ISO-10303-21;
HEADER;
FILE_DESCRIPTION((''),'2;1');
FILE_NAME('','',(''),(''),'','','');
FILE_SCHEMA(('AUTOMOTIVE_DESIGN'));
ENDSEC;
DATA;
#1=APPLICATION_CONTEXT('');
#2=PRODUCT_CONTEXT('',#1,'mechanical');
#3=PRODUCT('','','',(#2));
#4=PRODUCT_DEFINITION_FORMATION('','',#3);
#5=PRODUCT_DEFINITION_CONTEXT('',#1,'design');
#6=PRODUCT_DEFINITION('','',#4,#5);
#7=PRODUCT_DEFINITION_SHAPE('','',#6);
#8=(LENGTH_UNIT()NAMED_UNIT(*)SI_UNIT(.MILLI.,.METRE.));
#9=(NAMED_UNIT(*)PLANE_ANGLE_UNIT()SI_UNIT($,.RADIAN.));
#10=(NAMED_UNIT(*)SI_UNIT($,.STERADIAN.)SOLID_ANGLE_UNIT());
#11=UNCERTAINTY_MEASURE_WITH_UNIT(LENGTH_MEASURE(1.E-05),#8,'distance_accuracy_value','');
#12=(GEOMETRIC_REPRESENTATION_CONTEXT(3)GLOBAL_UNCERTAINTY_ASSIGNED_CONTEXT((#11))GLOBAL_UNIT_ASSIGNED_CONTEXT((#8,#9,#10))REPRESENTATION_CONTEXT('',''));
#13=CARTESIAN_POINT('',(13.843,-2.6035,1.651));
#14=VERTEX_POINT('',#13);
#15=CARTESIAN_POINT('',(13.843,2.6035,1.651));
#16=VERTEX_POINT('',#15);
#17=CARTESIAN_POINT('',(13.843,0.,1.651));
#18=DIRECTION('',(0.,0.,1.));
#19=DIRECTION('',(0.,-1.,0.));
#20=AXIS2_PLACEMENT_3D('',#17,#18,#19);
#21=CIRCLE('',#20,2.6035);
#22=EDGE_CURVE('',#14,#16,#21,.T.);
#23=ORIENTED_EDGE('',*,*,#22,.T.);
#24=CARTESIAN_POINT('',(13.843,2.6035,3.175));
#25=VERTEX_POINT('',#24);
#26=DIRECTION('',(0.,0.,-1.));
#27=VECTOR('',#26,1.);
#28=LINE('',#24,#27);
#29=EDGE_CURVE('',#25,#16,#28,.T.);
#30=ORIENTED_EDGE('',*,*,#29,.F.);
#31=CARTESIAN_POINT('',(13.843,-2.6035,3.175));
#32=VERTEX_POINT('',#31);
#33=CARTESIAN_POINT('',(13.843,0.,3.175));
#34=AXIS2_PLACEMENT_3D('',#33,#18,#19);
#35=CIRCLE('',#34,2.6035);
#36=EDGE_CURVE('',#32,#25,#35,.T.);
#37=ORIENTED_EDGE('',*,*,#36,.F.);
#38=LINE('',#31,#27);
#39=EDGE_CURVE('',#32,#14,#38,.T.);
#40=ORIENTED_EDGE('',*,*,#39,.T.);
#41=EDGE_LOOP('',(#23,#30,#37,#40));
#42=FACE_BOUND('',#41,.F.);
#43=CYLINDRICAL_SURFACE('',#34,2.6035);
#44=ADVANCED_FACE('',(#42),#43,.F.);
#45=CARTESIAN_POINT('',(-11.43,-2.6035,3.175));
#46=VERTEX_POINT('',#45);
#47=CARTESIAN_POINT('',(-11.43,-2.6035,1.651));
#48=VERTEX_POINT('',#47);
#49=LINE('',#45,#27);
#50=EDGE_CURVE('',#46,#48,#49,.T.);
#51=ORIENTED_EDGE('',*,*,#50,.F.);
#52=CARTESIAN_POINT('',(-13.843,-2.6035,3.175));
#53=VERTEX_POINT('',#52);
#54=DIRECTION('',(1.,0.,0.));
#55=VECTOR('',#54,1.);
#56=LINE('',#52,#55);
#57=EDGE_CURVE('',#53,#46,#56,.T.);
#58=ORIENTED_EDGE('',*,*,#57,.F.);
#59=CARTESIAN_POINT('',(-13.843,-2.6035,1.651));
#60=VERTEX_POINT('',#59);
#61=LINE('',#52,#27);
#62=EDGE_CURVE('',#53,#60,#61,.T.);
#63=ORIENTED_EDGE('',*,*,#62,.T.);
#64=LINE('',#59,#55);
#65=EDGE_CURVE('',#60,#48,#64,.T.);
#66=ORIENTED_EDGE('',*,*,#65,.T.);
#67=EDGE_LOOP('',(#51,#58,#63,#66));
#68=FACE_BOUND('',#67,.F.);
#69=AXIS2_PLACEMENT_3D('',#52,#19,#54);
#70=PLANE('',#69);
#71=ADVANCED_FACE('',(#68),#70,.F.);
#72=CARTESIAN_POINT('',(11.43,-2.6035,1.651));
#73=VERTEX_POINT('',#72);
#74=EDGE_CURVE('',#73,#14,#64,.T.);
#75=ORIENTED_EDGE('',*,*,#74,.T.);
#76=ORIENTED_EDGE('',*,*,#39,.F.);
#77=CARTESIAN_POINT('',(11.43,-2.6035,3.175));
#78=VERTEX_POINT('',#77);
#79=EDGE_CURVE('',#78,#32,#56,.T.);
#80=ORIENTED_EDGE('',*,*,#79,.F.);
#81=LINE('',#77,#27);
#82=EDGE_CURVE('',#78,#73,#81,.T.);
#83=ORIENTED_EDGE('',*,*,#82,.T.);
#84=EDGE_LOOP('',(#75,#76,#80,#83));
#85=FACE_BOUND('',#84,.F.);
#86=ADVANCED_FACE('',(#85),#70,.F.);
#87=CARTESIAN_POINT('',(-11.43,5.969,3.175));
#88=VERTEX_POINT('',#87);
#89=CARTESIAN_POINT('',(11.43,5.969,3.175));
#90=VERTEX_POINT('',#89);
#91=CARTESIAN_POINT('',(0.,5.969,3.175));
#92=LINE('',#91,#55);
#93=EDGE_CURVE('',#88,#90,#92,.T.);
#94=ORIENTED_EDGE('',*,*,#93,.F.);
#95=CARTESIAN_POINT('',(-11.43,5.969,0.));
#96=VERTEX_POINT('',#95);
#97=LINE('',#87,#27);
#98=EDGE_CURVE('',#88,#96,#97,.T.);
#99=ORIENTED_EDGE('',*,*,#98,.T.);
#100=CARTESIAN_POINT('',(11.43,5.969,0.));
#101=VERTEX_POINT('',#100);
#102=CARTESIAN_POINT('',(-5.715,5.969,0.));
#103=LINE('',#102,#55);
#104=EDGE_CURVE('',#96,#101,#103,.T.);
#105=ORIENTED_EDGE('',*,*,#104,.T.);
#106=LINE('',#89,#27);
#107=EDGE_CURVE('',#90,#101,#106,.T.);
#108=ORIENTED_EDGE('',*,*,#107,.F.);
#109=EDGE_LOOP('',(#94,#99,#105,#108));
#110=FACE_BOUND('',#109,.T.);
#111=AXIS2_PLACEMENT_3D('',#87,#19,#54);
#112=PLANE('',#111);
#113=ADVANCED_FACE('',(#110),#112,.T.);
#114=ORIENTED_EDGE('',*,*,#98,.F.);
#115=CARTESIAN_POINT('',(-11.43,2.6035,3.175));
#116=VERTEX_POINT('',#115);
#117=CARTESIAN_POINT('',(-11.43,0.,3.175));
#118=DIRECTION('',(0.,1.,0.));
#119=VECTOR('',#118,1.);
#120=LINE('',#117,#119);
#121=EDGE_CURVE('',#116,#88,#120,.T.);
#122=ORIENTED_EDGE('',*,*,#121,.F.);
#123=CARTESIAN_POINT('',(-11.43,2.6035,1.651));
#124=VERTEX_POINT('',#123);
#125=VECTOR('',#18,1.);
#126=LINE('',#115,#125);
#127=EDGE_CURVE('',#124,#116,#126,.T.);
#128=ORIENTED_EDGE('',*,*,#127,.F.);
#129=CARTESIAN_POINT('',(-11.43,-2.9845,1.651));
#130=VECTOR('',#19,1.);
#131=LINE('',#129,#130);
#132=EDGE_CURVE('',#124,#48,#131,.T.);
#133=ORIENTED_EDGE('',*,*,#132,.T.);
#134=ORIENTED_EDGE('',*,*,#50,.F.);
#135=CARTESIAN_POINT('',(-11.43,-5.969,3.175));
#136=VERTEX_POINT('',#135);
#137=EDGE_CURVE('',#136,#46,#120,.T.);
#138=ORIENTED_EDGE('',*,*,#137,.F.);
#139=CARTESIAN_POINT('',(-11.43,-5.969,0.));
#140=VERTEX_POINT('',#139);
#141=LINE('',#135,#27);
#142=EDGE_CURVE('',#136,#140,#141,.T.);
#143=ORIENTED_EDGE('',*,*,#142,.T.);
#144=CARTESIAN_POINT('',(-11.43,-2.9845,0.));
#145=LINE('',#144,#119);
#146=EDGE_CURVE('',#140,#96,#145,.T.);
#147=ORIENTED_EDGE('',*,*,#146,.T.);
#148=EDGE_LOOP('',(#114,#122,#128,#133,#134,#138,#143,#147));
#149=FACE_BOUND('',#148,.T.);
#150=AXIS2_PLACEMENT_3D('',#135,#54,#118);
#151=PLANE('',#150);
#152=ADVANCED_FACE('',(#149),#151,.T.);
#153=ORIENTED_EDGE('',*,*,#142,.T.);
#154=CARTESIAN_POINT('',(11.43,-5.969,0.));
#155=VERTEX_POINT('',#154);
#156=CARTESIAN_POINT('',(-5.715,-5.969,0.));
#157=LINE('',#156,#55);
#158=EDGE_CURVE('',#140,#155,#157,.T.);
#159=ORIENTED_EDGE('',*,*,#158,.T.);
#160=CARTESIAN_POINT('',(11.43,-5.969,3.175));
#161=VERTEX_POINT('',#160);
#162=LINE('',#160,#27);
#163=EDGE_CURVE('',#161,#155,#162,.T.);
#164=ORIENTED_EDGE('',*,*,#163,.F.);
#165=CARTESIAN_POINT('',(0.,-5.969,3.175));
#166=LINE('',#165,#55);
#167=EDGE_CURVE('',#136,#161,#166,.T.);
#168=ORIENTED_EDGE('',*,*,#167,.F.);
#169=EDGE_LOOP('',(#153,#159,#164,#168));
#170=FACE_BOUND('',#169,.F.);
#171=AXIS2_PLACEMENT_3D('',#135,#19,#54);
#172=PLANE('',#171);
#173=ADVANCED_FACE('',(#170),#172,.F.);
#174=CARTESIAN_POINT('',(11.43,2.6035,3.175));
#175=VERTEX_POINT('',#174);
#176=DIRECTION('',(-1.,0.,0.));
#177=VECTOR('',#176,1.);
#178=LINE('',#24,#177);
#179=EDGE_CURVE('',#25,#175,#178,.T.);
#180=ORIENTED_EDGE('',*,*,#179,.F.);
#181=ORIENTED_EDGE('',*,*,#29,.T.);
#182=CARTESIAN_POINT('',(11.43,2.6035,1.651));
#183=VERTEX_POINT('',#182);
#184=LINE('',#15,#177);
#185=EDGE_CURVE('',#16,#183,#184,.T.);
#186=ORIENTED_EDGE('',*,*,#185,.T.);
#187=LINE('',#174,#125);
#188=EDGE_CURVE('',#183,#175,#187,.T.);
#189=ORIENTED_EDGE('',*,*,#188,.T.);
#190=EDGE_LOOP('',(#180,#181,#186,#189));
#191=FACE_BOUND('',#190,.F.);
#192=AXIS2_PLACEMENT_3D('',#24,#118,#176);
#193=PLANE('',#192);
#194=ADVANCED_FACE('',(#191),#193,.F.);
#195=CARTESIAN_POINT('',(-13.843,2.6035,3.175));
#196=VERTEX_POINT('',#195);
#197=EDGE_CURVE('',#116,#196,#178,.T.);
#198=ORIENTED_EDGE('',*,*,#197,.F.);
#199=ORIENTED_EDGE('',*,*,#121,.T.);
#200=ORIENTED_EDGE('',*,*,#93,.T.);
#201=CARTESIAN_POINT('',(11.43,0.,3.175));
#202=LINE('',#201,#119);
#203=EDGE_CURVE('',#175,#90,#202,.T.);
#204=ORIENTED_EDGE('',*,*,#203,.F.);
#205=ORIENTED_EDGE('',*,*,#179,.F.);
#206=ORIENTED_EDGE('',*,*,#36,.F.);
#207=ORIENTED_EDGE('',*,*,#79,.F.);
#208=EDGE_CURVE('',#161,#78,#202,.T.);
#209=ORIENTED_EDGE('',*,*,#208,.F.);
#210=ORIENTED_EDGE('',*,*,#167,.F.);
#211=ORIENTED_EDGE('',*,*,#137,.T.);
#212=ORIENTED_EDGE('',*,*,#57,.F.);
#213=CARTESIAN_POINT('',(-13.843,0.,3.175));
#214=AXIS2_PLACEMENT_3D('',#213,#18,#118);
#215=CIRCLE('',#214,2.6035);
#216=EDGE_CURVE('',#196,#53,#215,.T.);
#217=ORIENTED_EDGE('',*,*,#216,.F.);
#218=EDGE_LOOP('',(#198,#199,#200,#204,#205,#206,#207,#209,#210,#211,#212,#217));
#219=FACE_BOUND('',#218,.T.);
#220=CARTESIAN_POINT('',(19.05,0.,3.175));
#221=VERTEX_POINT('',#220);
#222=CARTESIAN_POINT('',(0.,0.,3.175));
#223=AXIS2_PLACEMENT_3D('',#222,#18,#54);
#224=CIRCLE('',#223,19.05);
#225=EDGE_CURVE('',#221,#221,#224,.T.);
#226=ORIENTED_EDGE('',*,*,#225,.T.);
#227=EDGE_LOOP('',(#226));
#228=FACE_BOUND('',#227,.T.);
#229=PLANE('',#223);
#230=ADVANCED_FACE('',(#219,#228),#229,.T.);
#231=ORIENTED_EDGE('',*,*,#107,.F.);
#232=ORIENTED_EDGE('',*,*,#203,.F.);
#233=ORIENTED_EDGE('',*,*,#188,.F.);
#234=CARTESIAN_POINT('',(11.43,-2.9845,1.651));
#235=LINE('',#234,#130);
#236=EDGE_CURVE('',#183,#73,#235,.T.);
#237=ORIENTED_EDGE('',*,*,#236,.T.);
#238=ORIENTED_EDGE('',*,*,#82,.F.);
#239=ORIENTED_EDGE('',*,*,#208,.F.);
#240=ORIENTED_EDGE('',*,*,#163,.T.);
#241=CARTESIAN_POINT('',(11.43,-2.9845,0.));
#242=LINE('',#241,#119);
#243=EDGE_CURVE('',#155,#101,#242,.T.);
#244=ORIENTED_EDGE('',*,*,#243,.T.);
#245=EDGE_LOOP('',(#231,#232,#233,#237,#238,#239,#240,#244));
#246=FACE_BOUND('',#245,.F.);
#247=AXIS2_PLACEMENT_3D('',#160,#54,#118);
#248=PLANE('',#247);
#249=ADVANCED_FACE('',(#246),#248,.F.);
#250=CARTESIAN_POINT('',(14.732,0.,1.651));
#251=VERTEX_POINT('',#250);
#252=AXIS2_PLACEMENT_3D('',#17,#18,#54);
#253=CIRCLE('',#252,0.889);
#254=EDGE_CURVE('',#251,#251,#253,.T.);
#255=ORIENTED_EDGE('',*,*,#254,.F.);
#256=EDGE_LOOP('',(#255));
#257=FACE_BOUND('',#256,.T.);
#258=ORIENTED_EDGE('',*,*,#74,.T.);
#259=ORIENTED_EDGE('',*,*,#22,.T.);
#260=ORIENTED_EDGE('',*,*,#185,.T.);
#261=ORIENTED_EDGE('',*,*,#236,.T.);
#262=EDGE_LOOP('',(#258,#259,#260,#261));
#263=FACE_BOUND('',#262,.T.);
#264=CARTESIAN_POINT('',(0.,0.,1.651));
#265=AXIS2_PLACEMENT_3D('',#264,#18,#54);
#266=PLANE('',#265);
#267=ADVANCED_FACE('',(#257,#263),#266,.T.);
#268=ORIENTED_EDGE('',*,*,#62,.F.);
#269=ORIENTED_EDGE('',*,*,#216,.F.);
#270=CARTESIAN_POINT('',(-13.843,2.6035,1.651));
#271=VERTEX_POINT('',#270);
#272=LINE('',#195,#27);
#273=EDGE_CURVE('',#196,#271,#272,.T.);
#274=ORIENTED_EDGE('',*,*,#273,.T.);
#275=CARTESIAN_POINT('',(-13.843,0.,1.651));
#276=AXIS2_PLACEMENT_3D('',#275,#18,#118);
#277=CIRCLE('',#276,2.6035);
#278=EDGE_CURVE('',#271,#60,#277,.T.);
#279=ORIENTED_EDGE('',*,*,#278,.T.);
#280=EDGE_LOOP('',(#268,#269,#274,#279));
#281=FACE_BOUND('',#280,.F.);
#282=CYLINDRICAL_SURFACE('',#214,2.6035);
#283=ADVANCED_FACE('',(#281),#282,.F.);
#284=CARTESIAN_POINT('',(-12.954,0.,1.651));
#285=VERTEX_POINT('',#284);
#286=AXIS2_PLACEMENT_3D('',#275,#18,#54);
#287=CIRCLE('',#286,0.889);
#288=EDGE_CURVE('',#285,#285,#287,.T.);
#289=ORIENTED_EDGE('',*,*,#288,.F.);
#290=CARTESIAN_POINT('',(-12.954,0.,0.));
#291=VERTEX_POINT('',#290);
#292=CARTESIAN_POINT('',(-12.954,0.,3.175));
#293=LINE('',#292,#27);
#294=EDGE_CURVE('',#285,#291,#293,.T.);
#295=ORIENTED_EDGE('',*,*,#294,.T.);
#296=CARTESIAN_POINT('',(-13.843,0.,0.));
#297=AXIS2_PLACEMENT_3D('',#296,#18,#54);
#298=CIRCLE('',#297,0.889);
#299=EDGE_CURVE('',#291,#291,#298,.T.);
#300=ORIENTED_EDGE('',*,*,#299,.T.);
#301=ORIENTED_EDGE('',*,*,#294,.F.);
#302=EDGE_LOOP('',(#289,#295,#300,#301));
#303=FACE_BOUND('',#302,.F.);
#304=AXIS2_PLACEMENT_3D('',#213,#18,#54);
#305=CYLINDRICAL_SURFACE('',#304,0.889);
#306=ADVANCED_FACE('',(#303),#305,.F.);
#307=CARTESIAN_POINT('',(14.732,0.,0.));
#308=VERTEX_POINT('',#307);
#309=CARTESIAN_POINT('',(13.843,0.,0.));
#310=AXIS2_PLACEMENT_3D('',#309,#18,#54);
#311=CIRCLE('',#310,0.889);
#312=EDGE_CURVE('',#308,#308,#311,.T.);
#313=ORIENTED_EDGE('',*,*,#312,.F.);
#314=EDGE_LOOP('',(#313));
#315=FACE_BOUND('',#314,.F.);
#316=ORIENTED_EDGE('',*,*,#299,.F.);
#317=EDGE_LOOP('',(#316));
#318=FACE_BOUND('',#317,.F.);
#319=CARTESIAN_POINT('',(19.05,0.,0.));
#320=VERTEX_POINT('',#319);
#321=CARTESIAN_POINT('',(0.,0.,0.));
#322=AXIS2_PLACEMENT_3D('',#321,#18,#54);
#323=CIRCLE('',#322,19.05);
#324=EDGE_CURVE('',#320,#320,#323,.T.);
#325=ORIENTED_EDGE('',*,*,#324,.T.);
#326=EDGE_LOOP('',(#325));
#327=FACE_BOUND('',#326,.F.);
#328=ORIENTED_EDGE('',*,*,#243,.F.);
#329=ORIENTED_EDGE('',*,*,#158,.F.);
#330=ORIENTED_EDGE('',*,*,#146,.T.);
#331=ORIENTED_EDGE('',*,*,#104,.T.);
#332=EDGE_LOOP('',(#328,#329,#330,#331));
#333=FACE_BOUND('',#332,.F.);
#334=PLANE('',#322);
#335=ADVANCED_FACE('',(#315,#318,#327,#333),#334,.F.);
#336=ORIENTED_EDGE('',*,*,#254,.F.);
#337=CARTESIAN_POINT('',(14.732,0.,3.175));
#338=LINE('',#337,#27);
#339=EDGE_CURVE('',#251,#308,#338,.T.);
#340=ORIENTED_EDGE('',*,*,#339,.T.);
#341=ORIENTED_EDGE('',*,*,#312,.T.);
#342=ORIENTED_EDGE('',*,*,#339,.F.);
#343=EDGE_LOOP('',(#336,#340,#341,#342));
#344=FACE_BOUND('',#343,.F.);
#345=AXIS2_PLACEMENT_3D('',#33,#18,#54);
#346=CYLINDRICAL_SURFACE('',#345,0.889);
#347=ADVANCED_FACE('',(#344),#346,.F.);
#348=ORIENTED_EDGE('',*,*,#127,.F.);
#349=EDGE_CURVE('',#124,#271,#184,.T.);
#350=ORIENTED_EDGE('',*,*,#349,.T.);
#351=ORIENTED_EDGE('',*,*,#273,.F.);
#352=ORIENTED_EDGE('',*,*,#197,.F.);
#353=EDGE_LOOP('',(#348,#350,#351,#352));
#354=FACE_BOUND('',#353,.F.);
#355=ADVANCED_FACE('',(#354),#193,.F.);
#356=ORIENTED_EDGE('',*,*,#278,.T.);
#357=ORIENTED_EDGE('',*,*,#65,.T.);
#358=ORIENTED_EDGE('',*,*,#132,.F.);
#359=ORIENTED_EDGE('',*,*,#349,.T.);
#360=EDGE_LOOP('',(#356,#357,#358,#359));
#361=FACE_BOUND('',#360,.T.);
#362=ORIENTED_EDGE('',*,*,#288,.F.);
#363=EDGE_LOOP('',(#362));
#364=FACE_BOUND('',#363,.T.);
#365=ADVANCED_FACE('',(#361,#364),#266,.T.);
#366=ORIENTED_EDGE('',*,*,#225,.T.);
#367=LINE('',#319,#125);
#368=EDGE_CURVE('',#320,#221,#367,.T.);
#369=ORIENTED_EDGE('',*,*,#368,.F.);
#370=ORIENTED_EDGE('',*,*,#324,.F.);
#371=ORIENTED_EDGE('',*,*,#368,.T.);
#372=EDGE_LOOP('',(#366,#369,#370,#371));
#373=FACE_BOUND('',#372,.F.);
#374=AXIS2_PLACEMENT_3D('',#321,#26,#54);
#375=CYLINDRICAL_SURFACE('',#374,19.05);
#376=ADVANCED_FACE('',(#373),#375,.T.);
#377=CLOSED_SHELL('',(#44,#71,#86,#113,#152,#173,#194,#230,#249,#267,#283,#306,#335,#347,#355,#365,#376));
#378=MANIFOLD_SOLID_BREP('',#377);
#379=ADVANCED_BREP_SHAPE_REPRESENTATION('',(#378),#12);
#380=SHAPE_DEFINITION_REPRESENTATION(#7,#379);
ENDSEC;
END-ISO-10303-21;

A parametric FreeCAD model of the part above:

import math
import FreeCAD as App
import Part
import Sketcher
from FreeCAD import Vector
Q = App.Units.Quantity


def add_polygon(sketch, points):
    """Adds a closed chain of lines whose ends are joined by coincident constraints."""
    first, n = sketch.GeometryCount, len(points)
    for a, b in zip(points, points[1:] + points[:1]):
        sketch.addGeometry(Part.LineSegment(App.Vector(*a, 0), App.Vector(*b, 0)), False)
    for i in range(n):
        sketch.addConstraint(Sketcher.Constraint("Coincident", first + i, 2, first + (i + 1) % n, 1))

doc = App.newDocument("Part")
body = doc.addObject("PartDesign::Body", "Body")

sketch1 = body.newObject("Sketcher::SketchObject", "Sketch")
sketch1.AttachmentSupport = (doc.getObject("XY_Plane"), [""])
sketch1.MapMode = "FlatFace"
sketch1.addGeometry(Part.Circle(Vector(0, 0, 0), Vector(0, 0, 1), 19), False)
sketch1.addConstraint([
    Sketcher.Constraint("Coincident", 0, 3, -1, 1),
    Sketcher.Constraint("Diameter", 0, Q("1.5 in")),
])
pad1 = body.newObject("PartDesign::Pad", "Pad")
pad1.Profile = sketch1
pad1.Length = Q("0.125 in")

sketch2 = body.newObject("Sketcher::SketchObject", "Sketch001")
sketch2.AttachmentSupport = (doc.getObject("XY_Plane"), [""])
sketch2.MapMode = "FlatFace"
sketch2.AttachmentOffset = App.Placement(Vector(0, 0, 0.125 * 25.4), App.Rotation())
add_polygon(sketch2, [(-11.4, 6), (-11.4, -6), (11.4, -6), (11.4, 6)])
sketch2.addGeometry(Part.Circle(Vector(-13.8, 0, 0), Vector(0, 0, 1), 0.9), False)
sketch2.addGeometry(Part.Circle(Vector(13.8, 0, 0), Vector(0, 0, 1), 0.9), False)
sketch2.addConstraint([
    Sketcher.Constraint("Vertical", 0),
    Sketcher.Constraint("Horizontal", 1),
    Sketcher.Constraint("Vertical", 2),
    Sketcher.Constraint("Horizontal", 3),
    Sketcher.Constraint("Equal", 4, 5),
    Sketcher.Constraint("Symmetric", 4, 3, 5, 3, -1, 1),
    Sketcher.Constraint("Symmetric", 0, 2, 2, 2, -1, 1),
    Sketcher.Constraint("PointOnObject", 4, 3, -1),
    Sketcher.Constraint("Diameter", 4, Q("0.07 in")),
    Sketcher.Constraint("DistanceX", 1, 1, 1, 2, Q("0.9 in")),
    Sketcher.Constraint("DistanceY", 0, 2, 0, 1, Q("0.47 in")),
    Sketcher.Constraint("DistanceX", 4, 3, 5, 3, Q("1.09 in")),
])
pocket1 = body.newObject("PartDesign::Pocket", "Pocket")
pocket1.Profile = sketch2
pocket1.Type = "ThroughAll"

sketch3 = body.newObject("Sketcher::SketchObject", "Sketch002")
sketch3.AttachmentSupport = (doc.getObject("XY_Plane"), [""])
sketch3.MapMode = "FlatFace"
sketch3.AttachmentOffset = App.Placement(Vector(0, 0, 0.125 * 25.4), App.Rotation())
sketch3.addGeometry([
    Part.LineSegment(Vector(13.8, 2.6, 0), Vector(-13.8, 2.6, 0)),
    Part.ArcOfCircle(Part.Circle(Vector(-13.8, 0, 0), Vector(0, 0, 1), 2.6), math.radians(90), math.radians(270)),
    Part.LineSegment(Vector(-13.8, -2.6, 0), Vector(13.8, -2.6, 0)),
    Part.ArcOfCircle(Part.Circle(Vector(13.8, 0, 0), Vector(0, 0, 1), 2.6), math.radians(-90), math.radians(90)),
], False)
sketch3.addConstraint([
    Sketcher.Constraint("Tangent", 0, 2, 1, 1),
    Sketcher.Constraint("Tangent", 1, 2, 2, 1),
    Sketcher.Constraint("Tangent", 2, 2, 3, 1),
    Sketcher.Constraint("Tangent", 3, 2, 0, 1),
    Sketcher.Constraint("Horizontal", 0),
    Sketcher.Constraint("Horizontal", 2),
    Sketcher.Constraint("Symmetric", 1, 3, 3, 3, -1, 1),
    Sketcher.Constraint("DistanceX", 0, 2, 0, 1, Q("1.09 in")),
    Sketcher.Constraint("Radius", 1, Q("0.1025 in")),
])
pocket2 = body.newObject("PartDesign::Pocket", "Pocket001")
pocket2.Profile = sketch3
pocket2.Length = Q("0.06 in")

doc.recompute()
